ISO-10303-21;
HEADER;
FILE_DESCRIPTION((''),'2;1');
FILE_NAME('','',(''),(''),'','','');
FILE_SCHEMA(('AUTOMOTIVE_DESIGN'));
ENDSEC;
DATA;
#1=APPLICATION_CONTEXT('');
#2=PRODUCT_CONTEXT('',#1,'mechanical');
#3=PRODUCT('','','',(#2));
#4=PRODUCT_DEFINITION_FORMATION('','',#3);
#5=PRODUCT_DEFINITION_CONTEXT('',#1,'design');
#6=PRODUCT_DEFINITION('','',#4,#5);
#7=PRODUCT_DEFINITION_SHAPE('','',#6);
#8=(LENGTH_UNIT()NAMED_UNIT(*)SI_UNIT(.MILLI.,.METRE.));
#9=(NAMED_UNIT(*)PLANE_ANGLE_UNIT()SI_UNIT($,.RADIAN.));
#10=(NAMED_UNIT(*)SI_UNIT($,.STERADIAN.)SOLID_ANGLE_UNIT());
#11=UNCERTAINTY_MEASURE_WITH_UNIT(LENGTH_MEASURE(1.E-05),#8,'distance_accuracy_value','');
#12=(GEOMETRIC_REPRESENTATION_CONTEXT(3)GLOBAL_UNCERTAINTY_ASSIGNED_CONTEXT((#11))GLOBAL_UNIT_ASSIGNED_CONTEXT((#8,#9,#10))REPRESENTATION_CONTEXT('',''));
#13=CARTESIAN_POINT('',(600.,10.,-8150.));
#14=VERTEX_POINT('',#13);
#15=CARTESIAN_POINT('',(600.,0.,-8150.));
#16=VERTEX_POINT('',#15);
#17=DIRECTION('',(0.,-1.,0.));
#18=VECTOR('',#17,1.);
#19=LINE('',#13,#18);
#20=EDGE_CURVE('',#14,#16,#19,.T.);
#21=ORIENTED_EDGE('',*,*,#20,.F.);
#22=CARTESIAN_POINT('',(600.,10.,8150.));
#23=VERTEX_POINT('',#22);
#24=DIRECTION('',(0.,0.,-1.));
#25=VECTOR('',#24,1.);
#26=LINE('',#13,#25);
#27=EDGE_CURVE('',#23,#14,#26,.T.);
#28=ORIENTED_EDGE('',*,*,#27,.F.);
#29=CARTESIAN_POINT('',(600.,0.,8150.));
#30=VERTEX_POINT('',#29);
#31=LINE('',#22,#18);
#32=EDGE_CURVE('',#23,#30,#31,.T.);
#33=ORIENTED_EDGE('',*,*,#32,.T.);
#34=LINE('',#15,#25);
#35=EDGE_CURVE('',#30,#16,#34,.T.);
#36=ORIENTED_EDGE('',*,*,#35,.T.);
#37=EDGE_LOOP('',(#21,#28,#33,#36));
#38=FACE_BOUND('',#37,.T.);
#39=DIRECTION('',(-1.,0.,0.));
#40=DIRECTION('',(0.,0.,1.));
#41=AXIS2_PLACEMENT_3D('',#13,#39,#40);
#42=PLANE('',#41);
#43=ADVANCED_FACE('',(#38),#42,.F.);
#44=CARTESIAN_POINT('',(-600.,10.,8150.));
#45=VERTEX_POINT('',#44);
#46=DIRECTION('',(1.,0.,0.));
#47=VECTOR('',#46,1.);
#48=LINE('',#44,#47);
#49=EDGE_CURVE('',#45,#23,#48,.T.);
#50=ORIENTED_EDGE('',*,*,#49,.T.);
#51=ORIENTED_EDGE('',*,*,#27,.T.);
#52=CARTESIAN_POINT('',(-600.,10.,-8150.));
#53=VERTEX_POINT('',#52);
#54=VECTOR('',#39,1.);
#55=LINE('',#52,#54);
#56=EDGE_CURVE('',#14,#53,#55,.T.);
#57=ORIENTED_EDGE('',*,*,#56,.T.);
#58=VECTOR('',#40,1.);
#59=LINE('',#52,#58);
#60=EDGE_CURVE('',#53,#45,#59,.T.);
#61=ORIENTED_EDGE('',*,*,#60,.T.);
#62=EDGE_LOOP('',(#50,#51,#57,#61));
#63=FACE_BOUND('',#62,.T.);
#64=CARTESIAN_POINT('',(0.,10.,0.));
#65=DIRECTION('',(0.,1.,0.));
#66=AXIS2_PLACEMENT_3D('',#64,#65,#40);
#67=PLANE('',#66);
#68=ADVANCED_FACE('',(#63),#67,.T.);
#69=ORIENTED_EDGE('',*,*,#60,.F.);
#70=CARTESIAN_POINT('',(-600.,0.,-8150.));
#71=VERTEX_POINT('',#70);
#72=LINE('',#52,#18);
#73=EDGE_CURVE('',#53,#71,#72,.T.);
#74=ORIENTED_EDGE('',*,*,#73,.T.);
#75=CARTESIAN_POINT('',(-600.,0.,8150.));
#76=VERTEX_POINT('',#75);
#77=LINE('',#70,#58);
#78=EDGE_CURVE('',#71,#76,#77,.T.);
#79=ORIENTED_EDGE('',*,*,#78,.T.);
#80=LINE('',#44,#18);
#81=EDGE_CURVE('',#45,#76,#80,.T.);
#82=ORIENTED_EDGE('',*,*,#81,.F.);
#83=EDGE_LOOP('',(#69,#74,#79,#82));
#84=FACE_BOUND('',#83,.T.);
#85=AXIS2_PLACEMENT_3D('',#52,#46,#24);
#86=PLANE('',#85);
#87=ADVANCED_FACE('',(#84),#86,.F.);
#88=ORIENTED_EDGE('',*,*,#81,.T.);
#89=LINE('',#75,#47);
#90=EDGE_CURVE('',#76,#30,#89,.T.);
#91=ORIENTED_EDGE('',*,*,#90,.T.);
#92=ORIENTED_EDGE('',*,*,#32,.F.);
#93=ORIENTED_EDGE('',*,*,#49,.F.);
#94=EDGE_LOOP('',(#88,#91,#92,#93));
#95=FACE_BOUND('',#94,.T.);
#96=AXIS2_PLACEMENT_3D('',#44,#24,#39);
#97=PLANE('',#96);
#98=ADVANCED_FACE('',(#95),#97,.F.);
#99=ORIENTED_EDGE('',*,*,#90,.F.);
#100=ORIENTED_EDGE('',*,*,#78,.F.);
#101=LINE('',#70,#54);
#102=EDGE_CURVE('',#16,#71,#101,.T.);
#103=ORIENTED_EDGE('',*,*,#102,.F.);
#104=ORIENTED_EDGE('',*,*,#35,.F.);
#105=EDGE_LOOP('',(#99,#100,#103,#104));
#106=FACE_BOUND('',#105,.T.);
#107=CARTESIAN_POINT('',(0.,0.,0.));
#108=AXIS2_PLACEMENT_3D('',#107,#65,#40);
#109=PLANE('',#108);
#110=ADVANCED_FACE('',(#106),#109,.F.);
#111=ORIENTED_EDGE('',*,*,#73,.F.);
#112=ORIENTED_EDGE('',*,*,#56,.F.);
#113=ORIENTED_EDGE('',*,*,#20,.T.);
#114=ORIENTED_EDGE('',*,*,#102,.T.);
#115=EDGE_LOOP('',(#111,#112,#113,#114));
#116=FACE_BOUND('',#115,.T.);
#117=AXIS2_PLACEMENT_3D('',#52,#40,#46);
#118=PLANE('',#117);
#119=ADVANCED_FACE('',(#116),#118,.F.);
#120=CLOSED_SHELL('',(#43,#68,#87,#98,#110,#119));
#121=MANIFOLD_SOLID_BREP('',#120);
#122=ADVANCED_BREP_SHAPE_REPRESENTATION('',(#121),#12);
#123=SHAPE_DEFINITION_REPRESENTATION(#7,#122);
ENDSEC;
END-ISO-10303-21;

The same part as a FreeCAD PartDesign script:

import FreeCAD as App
import Part
import Sketcher
from FreeCAD import Vector

doc = App.newDocument("Part")
body = doc.addObject("PartDesign::Body", "Body")

# Sketch on XZ plane
sketch1 = body.newObject("Sketcher::SketchObject", "Sketch")
sketch1.AttachmentSupport = (doc.getObject("XZ_Plane"), [""])
sketch1.MapMode = "FlatFace"
sketch1.addGeometry(Part.LineSegment(Vector(-600, -8150, 0), Vector(-600, 8150, 0)), False)
sketch1.addGeometry(Part.LineSegment(Vector(-600, 8150, 0), Vector(600, 8150, 0)), False)
sketch1.addGeometry(Part.LineSegment(Vector(600, 8150, 0), Vector(600, -8150, 0)), False)
sketch1.addGeometry(Part.LineSegment(Vector(600, -8150, 0), Vector(-600, -8150, 0)), False)
sketch1.addConstraint(Sketcher.Constraint("Coincident", 0, 2, 1, 1))
sketch1.addConstraint(Sketcher.Constraint("Coincident", 1, 2, 2, 1))
sketch1.addConstraint(Sketcher.Constraint("Coincident", 2, 2, 3, 1))
sketch1.addConstraint(Sketcher.Constraint("Coincident", 3, 2, 0, 1))
sketch1.addConstraint(Sketcher.Constraint("Vertical", 0))
sketch1.addConstraint(Sketcher.Constraint("Horizontal", 1))
sketch1.addConstraint(Sketcher.Constraint("Vertical", 2))
sketch1.addConstraint(Sketcher.Constraint("Horizontal", 3))
sketch1.addConstraint(Sketcher.Constraint("Symmetric", 0, 2, 2, 2, -1, 1))
sketch1.addConstraint(Sketcher.Constraint("DistanceX", 1, 1, 1, 2, 1200.0))
sketch1.addConstraint(Sketcher.Constraint("DistanceY", 0, 1, 0, 2, 16300.0))
pad1 = body.newObject("PartDesign::Pad", "Pad")
pad1.Profile = sketch1
pad1.Length = 10
pad1.Reversed = True

doc.recompute()
